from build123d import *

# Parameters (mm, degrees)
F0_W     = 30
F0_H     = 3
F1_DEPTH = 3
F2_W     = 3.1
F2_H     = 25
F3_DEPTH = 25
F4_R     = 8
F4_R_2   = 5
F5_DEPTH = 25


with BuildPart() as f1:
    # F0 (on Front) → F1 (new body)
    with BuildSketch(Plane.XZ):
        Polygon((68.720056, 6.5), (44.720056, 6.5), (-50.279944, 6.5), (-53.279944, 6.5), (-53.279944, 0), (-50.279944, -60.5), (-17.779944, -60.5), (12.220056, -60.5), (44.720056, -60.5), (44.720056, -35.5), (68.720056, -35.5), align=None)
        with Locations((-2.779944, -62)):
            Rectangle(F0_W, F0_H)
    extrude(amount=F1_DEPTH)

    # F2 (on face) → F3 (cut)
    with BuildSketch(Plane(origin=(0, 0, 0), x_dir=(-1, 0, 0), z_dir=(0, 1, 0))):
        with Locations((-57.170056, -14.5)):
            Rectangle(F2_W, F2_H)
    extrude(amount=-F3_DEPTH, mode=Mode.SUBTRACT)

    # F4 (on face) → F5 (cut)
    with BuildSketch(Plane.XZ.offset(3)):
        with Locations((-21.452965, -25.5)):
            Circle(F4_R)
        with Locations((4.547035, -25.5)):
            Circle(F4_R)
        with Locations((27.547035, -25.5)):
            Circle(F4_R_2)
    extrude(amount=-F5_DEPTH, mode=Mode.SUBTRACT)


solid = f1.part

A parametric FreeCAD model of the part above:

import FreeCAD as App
import Part
import Sketcher
Q = App.Units.Quantity

doc = App.newDocument("Part")
body = doc.addObject("PartDesign::Body", "Body")

# Sketch on XZ plane
sketch1 = doc.addObject("Sketcher::SketchObject", "Sketch")
body.addObject(sketch1)
sketch1.AttachmentSupport = (doc.XZ_Plane, [""])
sketch1.MapMode = "FlatFace"
sketch1.addGeometry([
    Part.LineSegment(App.Vector(68.720056, 6.5, 0), App.Vector(-53.279944, 6.5, 0)),  # 0
    Part.LineSegment(App.Vector(-53.279944, 6.5, 0), App.Vector(-53.279944, 0, 0)),  # 1
    Part.LineSegment(App.Vector(-53.279944, 0, 0), App.Vector(-50.279944, -60.5, 0)),  # 2
    Part.LineSegment(App.Vector(-50.279944, -60.5, 0), App.Vector(-17.779944, -60.5, 0)),  # 3
    Part.LineSegment(App.Vector(-17.779944, -60.5, 0), App.Vector(-17.779944, -63.5, 0)),  # 4
    Part.LineSegment(App.Vector(-17.779944, -63.5, 0), App.Vector(12.220056, -63.5, 0)),  # 5
    Part.LineSegment(App.Vector(12.220056, -63.5, 0), App.Vector(12.220056, -60.5, 0)),  # 6
    Part.LineSegment(App.Vector(12.220056, -60.5, 0), App.Vector(44.720056, -60.5, 0)),  # 7
    Part.LineSegment(App.Vector(44.720056, -60.5, 0), App.Vector(44.720056, -35.5, 0)),  # 8
    Part.LineSegment(App.Vector(44.720056, -35.5, 0), App.Vector(68.720056, -35.5, 0)),  # 9
    Part.LineSegment(App.Vector(68.720056, -35.5, 0), App.Vector(68.720056, 6.5, 0)),  # 10
], False)
sketch1.addConstraint([
    Sketcher.Constraint("Coincident", 0, 2, 1, 1),
    Sketcher.Constraint("Coincident", 1, 2, 2, 1),
    Sketcher.Constraint("Coincident", 2, 2, 3, 1),
    Sketcher.Constraint("Coincident", 3, 2, 4, 1),
    Sketcher.Constraint("Coincident", 4, 2, 5, 1),
    Sketcher.Constraint("Coincident", 5, 2, 6, 1),
    Sketcher.Constraint("Coincident", 6, 2, 7, 1),
    Sketcher.Constraint("Coincident", 7, 2, 8, 1),
    Sketcher.Constraint("Coincident", 8, 2, 9, 1),
    Sketcher.Constraint("Coincident", 9, 2, 10, 1),
    Sketcher.Constraint("Coincident", 10, 2, 0, 1),
    Sketcher.Constraint("Horizontal", 0),
    Sketcher.Constraint("Vertical", 1),
    Sketcher.Constraint("Horizontal", 3),
    Sketcher.Constraint("Vertical", 4),
    Sketcher.Constraint("Horizontal", 5),
    Sketcher.Constraint("Vertical", 6),
    Sketcher.Constraint("Horizontal", 7),
    Sketcher.Constraint("Vertical", 8),
    Sketcher.Constraint("Horizontal", 9),
    Sketcher.Constraint("Vertical", 10),
    Sketcher.Constraint("PointOnObject", 1, 2, -1),
    Sketcher.Constraint("Horizontal", 3, 2, 6, 2),
    Sketcher.Constraint("Equal", 3, 7),
    Sketcher.Constraint("DistanceX", 0, 2, 0, 1, Q("122 mm")),
    Sketcher.Constraint("DistanceX", 5, 1, 5, 2, Q("30 mm")),
    Sketcher.Constraint("DistanceX", 9, 1, 9, 2, Q("24 mm")),
    Sketcher.Constraint("DistanceY", 4, 2, 4, 1, Q("3 mm")),
    Sketcher.Constraint("DistanceY", 8, 1, 8, 2, Q("25 mm")),
    Sketcher.Constraint("DistanceY", 10, 1, 10, 2, Q("42 mm")),
    Sketcher.Constraint("DistanceX", 3, 1, 3, 2, Q("32.5 mm")),
    Sketcher.Constraint("DistanceY", 1, 2, 1, 1, Q("6.5 mm")),
    Sketcher.Constraint("DistanceX", 0, 2, -1, 1, Q("53.279944 mm")),
])
pad1 = doc.addObject("PartDesign::Pad", "Pad")
body.addObject(pad1)
pad1.Profile = sketch1
pad1.Length = 3

# Sketch on XZ plane
sketch2 = doc.addObject("Sketcher::SketchObject", "Sketch001")
body.addObject(sketch2)
sketch2.AttachmentSupport = (doc.XZ_Plane, [""])
sketch2.MapMode = "FlatFace"
sketch2.addGeometry([
    Part.LineSegment(App.Vector(58.720056, -2, 0), App.Vector(58.720056, -27, 0)),
    Part.LineSegment(App.Vector(58.720056, -27, 0), App.Vector(55.620056, -27, 0)),
    Part.LineSegment(App.Vector(55.620056, -27, 0), App.Vector(55.620056, -2, 0)),
    Part.LineSegment(App.Vector(55.620056, -2, 0), App.Vector(58.720056, -2, 0)),
], False)
sketch2.addConstraint([
    Sketcher.Constraint("Coincident", 0, 2, 1, 1),
    Sketcher.Constraint("Coincident", 1, 2, 2, 1),
    Sketcher.Constraint("Coincident", 2, 2, 3, 1),
    Sketcher.Constraint("Coincident", 3, 2, 0, 1),
    Sketcher.Constraint("Vertical", 0),
    Sketcher.Constraint("Horizontal", 1),
    Sketcher.Constraint("Vertical", 2),
    Sketcher.Constraint("Horizontal", 3),
    Sketcher.Constraint("DistanceY", 0, 2, 0, 1, Q("25 mm")),
    Sketcher.Constraint("DistanceX", 1, 2, 1, 1, Q("3.1 mm")),
    Sketcher.Constraint("DistanceY", 0, 2, -1, 1, Q("27 mm")),
    Sketcher.Constraint("DistanceX", -1, 1, 0, 2, Q("58.720056 mm")),
])
pocket1 = doc.addObject("PartDesign::Pocket", "Pocket")
body.addObject(pocket1)
pocket1.Profile = sketch2
pocket1.Length = 25
pocket1.Reversed = True

# Sketch on XZ plane
sketch3 = doc.addObject("Sketcher::SketchObject", "Sketch002")
body.addObject(sketch3)
sketch3.AttachmentSupport = (doc.XZ_Plane, [""])
sketch3.MapMode = "FlatFace"
sketch3.AttachmentOffset = App.Placement(App.Vector(0, 0, 3), App.Rotation())
sketch3.addGeometry([
    Part.Circle(App.Vector(-21.452965, -25.5, 0), App.Vector(0, 0, 1), 8),
    Part.Circle(App.Vector(4.547035, -25.5, 0), App.Vector(0, 0, 1), 8),
    Part.Circle(App.Vector(27.547035, -25.5, 0), App.Vector(0, 0, 1), 5),
], False)
sketch3.addConstraint([
    Sketcher.Constraint("Equal", 0, 1),
    Sketcher.Constraint("Horizontal", 0, 3, 1, 3),
    Sketcher.Constraint("Horizontal", 1, 3, 2, 3),
    Sketcher.Constraint("Diameter", 0, Q("16 mm")),
    Sketcher.Constraint("Diameter", 2, Q("10 mm")),
    Sketcher.Constraint("DistanceX", 0, 3, 1, 3, Q("26 mm")),
    Sketcher.Constraint("DistanceX", 1, 3, 2, 3, Q("23 mm")),
    Sketcher.Constraint("DistanceY", 0, 3, -1, 1, Q("25.5 mm")),
    Sketcher.Constraint("DistanceX", 0, 3, -1, 1, Q("21.452965 mm")),
])
pocket2 = doc.addObject("PartDesign::Pocket", "Pocket001")
body.addObject(pocket2)
pocket2.Profile = sketch3
pocket2.Length = 25

doc.recompute()
